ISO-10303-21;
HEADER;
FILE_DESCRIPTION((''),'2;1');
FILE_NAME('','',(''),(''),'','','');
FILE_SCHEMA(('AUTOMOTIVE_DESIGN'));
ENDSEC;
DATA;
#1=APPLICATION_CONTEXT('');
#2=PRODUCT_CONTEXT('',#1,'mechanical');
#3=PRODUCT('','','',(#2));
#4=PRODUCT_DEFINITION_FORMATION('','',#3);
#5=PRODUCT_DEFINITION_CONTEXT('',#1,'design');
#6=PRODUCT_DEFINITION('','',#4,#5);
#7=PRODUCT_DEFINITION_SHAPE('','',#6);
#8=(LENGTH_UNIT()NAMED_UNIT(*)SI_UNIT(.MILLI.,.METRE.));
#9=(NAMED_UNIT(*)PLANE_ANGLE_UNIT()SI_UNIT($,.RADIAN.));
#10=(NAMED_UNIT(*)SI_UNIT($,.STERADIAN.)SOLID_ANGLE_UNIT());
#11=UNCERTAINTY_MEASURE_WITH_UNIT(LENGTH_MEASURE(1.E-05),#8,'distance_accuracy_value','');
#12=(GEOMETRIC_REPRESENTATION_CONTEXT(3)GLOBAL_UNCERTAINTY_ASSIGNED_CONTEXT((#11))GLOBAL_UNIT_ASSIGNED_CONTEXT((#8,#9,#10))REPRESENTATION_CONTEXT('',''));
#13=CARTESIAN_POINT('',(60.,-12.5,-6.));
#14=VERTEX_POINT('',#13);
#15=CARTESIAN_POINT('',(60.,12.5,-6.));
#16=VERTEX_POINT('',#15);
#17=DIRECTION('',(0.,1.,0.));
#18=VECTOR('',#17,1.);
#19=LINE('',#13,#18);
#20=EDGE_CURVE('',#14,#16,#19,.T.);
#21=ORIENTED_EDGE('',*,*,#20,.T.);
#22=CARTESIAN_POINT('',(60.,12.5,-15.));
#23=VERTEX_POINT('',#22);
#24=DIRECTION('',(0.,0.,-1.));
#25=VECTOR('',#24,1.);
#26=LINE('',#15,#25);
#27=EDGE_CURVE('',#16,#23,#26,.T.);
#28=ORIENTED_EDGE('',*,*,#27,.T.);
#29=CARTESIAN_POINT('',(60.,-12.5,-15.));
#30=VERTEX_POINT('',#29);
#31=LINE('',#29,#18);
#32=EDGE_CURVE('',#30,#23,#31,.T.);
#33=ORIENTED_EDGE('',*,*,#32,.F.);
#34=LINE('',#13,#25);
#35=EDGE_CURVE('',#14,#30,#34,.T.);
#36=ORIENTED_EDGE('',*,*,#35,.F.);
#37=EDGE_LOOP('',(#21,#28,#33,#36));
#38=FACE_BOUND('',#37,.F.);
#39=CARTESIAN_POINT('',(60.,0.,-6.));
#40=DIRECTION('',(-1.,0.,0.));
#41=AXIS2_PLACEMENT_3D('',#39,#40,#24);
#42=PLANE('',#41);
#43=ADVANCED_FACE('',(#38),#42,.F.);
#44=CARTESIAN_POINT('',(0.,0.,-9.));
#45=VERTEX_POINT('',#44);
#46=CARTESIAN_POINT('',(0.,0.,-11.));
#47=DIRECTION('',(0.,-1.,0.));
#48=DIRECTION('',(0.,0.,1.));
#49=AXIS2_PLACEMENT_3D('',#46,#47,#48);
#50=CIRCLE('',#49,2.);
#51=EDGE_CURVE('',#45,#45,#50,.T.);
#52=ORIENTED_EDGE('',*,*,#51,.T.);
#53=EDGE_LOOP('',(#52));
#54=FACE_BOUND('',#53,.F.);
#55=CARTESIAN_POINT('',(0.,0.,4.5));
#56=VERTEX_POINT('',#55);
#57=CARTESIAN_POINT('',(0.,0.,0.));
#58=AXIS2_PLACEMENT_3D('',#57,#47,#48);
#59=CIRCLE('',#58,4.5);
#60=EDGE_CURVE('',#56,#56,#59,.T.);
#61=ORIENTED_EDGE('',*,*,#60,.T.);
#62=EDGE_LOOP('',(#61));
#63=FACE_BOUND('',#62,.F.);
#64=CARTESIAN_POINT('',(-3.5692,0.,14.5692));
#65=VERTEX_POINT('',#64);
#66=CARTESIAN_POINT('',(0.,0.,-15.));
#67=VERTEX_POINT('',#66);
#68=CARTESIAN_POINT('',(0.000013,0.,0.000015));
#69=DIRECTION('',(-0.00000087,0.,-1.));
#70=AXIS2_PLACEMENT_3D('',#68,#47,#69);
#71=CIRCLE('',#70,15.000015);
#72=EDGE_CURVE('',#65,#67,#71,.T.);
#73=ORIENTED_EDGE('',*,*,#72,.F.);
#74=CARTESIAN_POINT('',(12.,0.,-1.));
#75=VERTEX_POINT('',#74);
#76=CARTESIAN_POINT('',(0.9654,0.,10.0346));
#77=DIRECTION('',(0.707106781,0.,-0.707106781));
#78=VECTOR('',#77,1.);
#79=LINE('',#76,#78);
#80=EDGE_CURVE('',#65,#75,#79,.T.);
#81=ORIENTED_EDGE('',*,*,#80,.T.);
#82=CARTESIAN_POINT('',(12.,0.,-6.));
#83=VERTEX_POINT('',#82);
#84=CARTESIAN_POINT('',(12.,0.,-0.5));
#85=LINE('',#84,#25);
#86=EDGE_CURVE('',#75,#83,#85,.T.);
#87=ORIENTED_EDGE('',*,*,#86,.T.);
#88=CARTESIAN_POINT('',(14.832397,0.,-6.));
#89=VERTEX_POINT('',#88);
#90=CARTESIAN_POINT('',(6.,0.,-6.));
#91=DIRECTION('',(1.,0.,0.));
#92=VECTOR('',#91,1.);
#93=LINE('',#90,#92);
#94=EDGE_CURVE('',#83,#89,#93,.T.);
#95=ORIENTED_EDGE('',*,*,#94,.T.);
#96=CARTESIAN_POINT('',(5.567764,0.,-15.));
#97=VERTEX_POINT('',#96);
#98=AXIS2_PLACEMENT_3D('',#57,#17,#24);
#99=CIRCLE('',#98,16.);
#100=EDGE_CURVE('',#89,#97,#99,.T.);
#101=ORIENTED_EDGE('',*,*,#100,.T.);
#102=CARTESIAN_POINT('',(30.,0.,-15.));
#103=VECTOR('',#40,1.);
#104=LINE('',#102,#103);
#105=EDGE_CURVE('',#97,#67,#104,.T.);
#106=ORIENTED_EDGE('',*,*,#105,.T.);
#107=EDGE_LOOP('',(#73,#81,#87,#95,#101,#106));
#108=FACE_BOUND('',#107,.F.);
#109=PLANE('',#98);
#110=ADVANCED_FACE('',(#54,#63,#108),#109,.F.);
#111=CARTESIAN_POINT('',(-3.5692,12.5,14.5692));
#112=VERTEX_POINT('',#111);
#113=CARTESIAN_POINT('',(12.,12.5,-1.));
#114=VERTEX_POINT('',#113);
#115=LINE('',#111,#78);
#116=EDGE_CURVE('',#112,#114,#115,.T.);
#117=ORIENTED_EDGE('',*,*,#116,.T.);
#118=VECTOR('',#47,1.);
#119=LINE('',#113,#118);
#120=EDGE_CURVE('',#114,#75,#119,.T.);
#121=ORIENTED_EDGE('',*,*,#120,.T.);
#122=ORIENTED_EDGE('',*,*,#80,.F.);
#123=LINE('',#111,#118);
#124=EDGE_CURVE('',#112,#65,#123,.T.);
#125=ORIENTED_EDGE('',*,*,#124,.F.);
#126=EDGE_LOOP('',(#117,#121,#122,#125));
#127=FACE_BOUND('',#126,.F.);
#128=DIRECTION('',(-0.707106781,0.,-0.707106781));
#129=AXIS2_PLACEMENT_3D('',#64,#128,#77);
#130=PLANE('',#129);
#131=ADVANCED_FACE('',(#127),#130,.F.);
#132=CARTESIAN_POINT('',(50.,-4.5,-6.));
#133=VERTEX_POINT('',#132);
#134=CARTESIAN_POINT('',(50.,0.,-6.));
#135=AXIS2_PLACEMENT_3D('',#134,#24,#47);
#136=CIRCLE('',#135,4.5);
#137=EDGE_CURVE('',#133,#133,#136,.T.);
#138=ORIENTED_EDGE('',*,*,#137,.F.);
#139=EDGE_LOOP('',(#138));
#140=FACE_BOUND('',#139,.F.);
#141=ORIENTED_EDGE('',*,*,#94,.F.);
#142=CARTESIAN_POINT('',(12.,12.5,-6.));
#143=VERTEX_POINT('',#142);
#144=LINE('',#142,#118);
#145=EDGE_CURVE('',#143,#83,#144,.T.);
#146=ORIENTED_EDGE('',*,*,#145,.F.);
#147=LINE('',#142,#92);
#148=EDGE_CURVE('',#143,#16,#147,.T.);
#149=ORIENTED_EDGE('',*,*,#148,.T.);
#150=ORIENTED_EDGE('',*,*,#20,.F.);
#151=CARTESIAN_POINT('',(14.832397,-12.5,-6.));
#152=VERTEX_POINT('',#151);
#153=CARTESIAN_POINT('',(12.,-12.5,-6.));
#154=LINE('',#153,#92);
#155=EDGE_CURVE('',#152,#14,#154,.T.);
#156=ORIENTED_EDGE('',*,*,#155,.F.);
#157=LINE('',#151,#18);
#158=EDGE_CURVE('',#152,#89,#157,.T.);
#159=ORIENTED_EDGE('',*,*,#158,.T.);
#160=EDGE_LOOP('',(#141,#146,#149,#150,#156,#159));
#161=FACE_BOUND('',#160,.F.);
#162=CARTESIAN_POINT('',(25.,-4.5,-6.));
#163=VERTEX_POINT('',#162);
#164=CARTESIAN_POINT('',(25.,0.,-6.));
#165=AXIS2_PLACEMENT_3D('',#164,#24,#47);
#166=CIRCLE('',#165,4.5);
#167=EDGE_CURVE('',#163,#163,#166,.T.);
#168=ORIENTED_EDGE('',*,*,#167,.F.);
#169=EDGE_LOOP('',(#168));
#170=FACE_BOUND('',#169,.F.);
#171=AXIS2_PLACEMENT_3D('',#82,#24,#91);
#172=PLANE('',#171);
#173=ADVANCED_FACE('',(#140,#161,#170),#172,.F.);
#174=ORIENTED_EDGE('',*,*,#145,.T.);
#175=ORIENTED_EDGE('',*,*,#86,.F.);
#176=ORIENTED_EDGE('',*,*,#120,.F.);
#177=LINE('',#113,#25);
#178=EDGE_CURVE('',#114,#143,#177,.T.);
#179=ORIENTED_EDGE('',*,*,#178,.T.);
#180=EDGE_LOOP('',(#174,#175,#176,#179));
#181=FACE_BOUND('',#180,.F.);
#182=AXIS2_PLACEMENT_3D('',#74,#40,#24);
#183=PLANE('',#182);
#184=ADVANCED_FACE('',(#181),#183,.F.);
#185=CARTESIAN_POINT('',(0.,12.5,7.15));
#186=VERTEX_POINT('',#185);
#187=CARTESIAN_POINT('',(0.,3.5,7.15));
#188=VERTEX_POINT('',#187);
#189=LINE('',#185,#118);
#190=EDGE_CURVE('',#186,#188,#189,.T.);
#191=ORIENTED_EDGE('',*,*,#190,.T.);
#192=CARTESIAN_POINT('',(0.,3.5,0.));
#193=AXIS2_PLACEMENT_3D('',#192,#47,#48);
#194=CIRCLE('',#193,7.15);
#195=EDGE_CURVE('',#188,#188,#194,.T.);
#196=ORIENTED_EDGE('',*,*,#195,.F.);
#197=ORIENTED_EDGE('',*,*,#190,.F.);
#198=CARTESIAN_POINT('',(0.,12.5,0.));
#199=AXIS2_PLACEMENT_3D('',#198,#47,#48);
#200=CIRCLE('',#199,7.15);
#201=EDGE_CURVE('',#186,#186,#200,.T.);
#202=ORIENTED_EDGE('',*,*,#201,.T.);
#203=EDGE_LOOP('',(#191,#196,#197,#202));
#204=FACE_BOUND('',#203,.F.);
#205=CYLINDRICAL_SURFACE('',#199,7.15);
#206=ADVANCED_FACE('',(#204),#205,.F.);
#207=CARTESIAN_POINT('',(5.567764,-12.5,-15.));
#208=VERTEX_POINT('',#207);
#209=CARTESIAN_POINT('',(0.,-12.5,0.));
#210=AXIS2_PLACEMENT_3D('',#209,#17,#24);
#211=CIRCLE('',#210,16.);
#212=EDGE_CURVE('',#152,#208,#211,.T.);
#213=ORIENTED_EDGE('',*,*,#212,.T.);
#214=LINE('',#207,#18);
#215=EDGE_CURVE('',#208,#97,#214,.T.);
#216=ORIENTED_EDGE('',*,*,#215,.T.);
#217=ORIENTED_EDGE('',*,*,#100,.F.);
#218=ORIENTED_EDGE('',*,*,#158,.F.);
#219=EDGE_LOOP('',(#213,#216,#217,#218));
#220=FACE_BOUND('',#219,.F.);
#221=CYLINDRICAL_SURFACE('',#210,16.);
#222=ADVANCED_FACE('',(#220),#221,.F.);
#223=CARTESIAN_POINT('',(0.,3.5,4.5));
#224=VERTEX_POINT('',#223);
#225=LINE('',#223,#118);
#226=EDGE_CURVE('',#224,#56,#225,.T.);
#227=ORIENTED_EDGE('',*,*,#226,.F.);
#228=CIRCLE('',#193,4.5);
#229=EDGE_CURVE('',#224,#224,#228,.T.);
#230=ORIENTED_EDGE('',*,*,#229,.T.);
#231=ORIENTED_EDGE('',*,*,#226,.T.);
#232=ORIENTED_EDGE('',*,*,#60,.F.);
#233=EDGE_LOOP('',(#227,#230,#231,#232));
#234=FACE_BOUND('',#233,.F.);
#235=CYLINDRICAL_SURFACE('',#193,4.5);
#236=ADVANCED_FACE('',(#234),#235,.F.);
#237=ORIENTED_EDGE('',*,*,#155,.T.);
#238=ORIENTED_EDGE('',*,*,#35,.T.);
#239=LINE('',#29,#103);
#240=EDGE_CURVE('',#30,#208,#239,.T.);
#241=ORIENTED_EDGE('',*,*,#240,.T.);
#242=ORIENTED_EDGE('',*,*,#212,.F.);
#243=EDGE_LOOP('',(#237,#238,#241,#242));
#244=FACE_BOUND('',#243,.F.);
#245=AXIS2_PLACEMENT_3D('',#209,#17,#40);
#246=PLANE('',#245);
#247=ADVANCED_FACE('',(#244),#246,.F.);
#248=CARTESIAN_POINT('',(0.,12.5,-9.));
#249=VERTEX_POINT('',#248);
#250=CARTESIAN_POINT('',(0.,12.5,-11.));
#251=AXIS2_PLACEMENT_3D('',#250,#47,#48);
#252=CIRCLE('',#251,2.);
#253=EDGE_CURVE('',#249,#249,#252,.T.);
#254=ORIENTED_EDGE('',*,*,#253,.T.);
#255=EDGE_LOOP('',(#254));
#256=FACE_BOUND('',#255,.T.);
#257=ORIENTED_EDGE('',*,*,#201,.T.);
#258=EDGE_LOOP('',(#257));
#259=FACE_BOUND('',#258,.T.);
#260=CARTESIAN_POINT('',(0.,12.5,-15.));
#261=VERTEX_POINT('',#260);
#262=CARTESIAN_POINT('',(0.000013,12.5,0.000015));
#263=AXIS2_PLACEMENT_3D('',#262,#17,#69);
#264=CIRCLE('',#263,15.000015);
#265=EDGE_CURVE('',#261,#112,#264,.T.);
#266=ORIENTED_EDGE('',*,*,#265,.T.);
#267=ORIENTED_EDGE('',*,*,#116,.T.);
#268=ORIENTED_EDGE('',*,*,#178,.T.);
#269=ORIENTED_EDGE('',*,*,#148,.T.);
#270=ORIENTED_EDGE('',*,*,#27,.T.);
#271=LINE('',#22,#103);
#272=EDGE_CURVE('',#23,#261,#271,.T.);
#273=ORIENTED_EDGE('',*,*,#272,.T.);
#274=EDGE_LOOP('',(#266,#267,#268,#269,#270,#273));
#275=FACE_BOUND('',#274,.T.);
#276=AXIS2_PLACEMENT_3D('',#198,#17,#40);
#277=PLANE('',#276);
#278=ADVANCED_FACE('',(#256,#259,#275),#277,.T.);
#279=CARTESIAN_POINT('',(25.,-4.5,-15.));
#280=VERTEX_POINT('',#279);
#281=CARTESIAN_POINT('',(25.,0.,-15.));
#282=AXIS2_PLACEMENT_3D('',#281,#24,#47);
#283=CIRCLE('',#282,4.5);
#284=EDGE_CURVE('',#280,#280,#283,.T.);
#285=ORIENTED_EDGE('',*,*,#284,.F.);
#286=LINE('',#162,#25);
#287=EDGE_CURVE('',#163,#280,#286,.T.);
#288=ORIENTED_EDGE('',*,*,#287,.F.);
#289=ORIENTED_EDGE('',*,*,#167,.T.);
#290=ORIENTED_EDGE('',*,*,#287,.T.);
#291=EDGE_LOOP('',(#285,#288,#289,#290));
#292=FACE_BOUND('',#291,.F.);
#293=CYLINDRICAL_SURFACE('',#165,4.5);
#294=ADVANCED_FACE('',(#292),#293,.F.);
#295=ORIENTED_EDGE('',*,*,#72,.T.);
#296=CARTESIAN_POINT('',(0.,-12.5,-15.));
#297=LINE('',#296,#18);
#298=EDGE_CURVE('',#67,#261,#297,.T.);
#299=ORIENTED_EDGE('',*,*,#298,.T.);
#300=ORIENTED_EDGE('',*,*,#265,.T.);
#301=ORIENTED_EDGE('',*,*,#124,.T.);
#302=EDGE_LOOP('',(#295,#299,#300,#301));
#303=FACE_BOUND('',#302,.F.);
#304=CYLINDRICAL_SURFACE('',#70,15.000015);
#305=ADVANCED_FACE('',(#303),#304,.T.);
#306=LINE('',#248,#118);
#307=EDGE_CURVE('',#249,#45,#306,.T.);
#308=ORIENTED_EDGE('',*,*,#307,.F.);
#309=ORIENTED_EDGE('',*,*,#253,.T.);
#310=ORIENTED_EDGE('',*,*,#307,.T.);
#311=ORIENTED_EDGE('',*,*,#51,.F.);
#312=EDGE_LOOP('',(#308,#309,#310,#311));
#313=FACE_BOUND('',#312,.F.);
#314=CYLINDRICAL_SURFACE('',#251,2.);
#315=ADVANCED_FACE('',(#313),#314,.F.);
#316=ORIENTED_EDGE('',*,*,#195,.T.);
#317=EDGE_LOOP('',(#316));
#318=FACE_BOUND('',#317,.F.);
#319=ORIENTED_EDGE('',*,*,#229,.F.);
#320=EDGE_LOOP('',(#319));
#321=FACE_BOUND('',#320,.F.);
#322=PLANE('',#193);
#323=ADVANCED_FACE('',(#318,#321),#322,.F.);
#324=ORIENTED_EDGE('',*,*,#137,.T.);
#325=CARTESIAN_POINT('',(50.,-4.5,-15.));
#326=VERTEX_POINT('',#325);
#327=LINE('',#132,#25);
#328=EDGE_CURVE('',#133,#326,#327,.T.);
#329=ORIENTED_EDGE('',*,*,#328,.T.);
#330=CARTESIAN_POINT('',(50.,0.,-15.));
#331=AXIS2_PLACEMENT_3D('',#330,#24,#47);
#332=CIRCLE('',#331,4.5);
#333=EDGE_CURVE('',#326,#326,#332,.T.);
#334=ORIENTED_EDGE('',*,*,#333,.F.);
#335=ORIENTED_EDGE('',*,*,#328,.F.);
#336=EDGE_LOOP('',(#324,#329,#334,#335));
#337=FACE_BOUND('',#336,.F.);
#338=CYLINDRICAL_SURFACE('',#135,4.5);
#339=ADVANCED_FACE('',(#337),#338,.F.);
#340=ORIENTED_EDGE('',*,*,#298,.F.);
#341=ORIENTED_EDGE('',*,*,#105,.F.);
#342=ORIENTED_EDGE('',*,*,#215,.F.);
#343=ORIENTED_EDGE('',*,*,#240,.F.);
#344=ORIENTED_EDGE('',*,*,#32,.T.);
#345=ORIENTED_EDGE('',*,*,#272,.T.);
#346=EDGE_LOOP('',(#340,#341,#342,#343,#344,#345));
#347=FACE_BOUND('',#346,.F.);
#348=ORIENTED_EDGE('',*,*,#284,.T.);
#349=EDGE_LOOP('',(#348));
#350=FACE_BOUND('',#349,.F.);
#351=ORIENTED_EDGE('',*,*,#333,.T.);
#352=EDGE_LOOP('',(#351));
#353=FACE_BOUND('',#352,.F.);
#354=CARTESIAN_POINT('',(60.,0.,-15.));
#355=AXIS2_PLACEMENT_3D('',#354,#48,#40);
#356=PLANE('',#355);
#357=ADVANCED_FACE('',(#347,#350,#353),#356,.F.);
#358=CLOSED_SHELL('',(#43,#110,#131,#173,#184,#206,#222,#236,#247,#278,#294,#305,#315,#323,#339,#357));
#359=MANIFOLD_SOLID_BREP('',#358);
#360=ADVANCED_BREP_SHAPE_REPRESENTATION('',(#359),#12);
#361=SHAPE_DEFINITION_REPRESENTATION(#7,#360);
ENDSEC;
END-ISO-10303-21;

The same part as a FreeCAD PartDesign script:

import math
import FreeCAD as App
import Part
import Sketcher

V = App.Vector
Q = App.Units.Quantity

doc = App.newDocument("Part")
body = doc.addObject("PartDesign::Body", "Body")

# Sketch on XZ plane
sketch1 = doc.addObject("Sketcher::SketchObject", "Sketch")
body.addObject(sketch1)
sketch1.AttachmentSupport = (doc.XZ_Plane, [""])
sketch1.MapMode = "FlatFace"
sketch1.addGeometry([
    Part.LineSegment(V(12, -6, 0), V(60, -6, 0)),  # 0
    Part.LineSegment(V(60, -6, 0), V(60, -15, 0)),  # 1
    Part.LineSegment(V(60, -15, 0), V(0, -15, 0)),  # 2
    Part.ArcOfCircle(Part.Circle(V(0, 0, 0), V(0, 0, 1), 15), math.radians(103.765358), math.radians(270)),  # 3
    Part.LineSegment(V(-3.5692, 14.5692, 0), V(12, -1, 0)),  # 4
    Part.LineSegment(V(12, -1, 0), V(12, -6, 0)),  # 5
], False)
sketch1.addConstraint([
    Sketcher.Constraint("Coincident", 0, 2, 1, 1),
    Sketcher.Constraint("Coincident", 1, 2, 2, 1),
    Sketcher.Constraint("Tangent", 2, 2, 3, 2),
    Sketcher.Constraint("Coincident", 3, 1, 4, 1),
    Sketcher.Constraint("Coincident", 4, 2, 5, 1),
    Sketcher.Constraint("Coincident", 5, 2, 0, 1),
    Sketcher.Constraint("Horizontal", 0),
    Sketcher.Constraint("Vertical", 1),
    Sketcher.Constraint("Horizontal", 2),
    Sketcher.Constraint("Vertical", 5),
    Sketcher.Constraint("Coincident", 3, 3, -1, 1),
    Sketcher.Constraint("Radius", 3, Q("15 mm")),
    Sketcher.Constraint("DistanceX", 2, 2, 2, 1, Q("60 mm")),
    Sketcher.Constraint("DistanceY", 1, 2, 1, 1, Q("9 mm")),
    Sketcher.Constraint("DistanceY", 5, 2, 5, 1, Q("5 mm")),
    Sketcher.Constraint("Angle", 4, Q("-45 deg")),
    Sketcher.Constraint("DistanceX", 0, 1, 0, 2, Q("48 mm")),
])
pad1 = doc.addObject("PartDesign::Pad", "Pad")
body.addObject(pad1)
pad1.Profile = sketch1
pad1.Length = 25
pad1.Midplane = True

# Sketch on XZ plane
sketch2 = doc.addObject("Sketcher::SketchObject", "Sketch001")
body.addObject(sketch2)
sketch2.AttachmentSupport = (doc.XZ_Plane, [""])
sketch2.MapMode = "FlatFace"
sketch2.AttachmentOffset = App.Placement(V(0, 0, 12.5), App.Rotation())
sketch2.addGeometry(Part.Circle(V(0, 0, 0), V(0, 0, 1), 16), False)
sketch2.addConstraint([
    Sketcher.Constraint("Coincident", 0, 3, -1, 1),
    Sketcher.Constraint("Diameter", 0, Q("32 mm")),
])
doc.recompute()
hole = doc.addObject("PartDesign::Hole", "Hole")
body.addObject(hole)
hole.Profile = sketch2
hole.ThreadType = "None"
hole.Diameter = 32
hole.DepthType = "Dimension"
hole.Depth = 12.5
hole.DrillPoint = "Flat"

# Sketch on XZ plane
sketch3 = doc.addObject("Sketcher::SketchObject", "Sketch002")
body.addObject(sketch3)
sketch3.AttachmentSupport = (doc.XZ_Plane, [""])
sketch3.MapMode = "FlatFace"
sketch3.AttachmentOffset = App.Placement(V(0, 0, -12.5), App.Rotation())
sketch3.addGeometry(Part.Circle(V(0, 0, 0), V(0, 0, 1), 4.5), False)
sketch3.addConstraint([
    Sketcher.Constraint("Coincident", 0, 3, -1, 1),
    Sketcher.Constraint("Diameter", 0, Q("9 mm")),
])
doc.recompute()
hole2 = doc.addObject("PartDesign::Hole", "Hole001")
body.addObject(hole2)
hole2.Profile = sketch3
hole2.ThreadType = "None"
hole2.Diameter = 9
hole2.DepthType = "ThroughAll"
hole2.HoleCutType = "Counterbore"
hole2.HoleCutDiameter = 14.3
hole2.HoleCutDepth = 9
hole2.Reversed = True

# Sketch on XZ plane
sketch4 = doc.addObject("Sketcher::SketchObject", "Sketch003")
body.addObject(sketch4)
sketch4.AttachmentSupport = (doc.XZ_Plane, [""])
sketch4.MapMode = "FlatFace"
sketch4.AttachmentOffset = App.Placement(V(0, 0, -12.5), App.Rotation())
sketch4.addGeometry(Part.Circle(V(0, -11, 0), V(0, 0, 1), 2), False)
sketch4.addConstraint([
    Sketcher.Constraint("PointOnObject", 0, 3, -2),
    Sketcher.Constraint("Diameter", 0, Q("4 mm")),
    Sketcher.Constraint("DistanceY", 0, 3, -1, 1, Q("11 mm")),
])
doc.recompute()
hole3 = doc.addObject("PartDesign::Hole", "Hole002")
body.addObject(hole3)
hole3.Profile = sketch4
hole3.ThreadType = "None"
hole3.Diameter = 4
hole3.DepthType = "ThroughAll"
hole3.Reversed = True

# Sketch on XY plane
sketch5 = doc.addObject("Sketcher::SketchObject", "Sketch004")
body.addObject(sketch5)
sketch5.AttachmentSupport = (doc.XY_Plane, [""])
sketch5.MapMode = "FlatFace"
sketch5.AttachmentOffset = App.Placement(V(0, 0, -6), App.Rotation())
sketch5.addGeometry([
    Part.Circle(V(50, 0, 0), V(0, 0, 1), 4.5),
    Part.Circle(V(25, 0, 0), V(0, 0, 1), 4.5),
], False)
sketch5.addConstraint([
    Sketcher.Constraint("Equal", 0, 1),
    Sketcher.Constraint("PointOnObject", 0, 3, -1),
    Sketcher.Constraint("PointOnObject", 1, 3, -1),
    Sketcher.Constraint("Diameter", 0, Q("9 mm")),
    Sketcher.Constraint("DistanceX", -1, 1, 0, 3, Q("50 mm")),
    Sketcher.Constraint("DistanceX", -1, 1, 1, 3, Q("25 mm")),
])
doc.recompute()
hole4 = doc.addObject("PartDesign::Hole", "Hole003")
body.addObject(hole4)
hole4.Profile = sketch5
hole4.ThreadType = "None"
hole4.Diameter = 9
hole4.DepthType = "ThroughAll"

doc.recompute()
